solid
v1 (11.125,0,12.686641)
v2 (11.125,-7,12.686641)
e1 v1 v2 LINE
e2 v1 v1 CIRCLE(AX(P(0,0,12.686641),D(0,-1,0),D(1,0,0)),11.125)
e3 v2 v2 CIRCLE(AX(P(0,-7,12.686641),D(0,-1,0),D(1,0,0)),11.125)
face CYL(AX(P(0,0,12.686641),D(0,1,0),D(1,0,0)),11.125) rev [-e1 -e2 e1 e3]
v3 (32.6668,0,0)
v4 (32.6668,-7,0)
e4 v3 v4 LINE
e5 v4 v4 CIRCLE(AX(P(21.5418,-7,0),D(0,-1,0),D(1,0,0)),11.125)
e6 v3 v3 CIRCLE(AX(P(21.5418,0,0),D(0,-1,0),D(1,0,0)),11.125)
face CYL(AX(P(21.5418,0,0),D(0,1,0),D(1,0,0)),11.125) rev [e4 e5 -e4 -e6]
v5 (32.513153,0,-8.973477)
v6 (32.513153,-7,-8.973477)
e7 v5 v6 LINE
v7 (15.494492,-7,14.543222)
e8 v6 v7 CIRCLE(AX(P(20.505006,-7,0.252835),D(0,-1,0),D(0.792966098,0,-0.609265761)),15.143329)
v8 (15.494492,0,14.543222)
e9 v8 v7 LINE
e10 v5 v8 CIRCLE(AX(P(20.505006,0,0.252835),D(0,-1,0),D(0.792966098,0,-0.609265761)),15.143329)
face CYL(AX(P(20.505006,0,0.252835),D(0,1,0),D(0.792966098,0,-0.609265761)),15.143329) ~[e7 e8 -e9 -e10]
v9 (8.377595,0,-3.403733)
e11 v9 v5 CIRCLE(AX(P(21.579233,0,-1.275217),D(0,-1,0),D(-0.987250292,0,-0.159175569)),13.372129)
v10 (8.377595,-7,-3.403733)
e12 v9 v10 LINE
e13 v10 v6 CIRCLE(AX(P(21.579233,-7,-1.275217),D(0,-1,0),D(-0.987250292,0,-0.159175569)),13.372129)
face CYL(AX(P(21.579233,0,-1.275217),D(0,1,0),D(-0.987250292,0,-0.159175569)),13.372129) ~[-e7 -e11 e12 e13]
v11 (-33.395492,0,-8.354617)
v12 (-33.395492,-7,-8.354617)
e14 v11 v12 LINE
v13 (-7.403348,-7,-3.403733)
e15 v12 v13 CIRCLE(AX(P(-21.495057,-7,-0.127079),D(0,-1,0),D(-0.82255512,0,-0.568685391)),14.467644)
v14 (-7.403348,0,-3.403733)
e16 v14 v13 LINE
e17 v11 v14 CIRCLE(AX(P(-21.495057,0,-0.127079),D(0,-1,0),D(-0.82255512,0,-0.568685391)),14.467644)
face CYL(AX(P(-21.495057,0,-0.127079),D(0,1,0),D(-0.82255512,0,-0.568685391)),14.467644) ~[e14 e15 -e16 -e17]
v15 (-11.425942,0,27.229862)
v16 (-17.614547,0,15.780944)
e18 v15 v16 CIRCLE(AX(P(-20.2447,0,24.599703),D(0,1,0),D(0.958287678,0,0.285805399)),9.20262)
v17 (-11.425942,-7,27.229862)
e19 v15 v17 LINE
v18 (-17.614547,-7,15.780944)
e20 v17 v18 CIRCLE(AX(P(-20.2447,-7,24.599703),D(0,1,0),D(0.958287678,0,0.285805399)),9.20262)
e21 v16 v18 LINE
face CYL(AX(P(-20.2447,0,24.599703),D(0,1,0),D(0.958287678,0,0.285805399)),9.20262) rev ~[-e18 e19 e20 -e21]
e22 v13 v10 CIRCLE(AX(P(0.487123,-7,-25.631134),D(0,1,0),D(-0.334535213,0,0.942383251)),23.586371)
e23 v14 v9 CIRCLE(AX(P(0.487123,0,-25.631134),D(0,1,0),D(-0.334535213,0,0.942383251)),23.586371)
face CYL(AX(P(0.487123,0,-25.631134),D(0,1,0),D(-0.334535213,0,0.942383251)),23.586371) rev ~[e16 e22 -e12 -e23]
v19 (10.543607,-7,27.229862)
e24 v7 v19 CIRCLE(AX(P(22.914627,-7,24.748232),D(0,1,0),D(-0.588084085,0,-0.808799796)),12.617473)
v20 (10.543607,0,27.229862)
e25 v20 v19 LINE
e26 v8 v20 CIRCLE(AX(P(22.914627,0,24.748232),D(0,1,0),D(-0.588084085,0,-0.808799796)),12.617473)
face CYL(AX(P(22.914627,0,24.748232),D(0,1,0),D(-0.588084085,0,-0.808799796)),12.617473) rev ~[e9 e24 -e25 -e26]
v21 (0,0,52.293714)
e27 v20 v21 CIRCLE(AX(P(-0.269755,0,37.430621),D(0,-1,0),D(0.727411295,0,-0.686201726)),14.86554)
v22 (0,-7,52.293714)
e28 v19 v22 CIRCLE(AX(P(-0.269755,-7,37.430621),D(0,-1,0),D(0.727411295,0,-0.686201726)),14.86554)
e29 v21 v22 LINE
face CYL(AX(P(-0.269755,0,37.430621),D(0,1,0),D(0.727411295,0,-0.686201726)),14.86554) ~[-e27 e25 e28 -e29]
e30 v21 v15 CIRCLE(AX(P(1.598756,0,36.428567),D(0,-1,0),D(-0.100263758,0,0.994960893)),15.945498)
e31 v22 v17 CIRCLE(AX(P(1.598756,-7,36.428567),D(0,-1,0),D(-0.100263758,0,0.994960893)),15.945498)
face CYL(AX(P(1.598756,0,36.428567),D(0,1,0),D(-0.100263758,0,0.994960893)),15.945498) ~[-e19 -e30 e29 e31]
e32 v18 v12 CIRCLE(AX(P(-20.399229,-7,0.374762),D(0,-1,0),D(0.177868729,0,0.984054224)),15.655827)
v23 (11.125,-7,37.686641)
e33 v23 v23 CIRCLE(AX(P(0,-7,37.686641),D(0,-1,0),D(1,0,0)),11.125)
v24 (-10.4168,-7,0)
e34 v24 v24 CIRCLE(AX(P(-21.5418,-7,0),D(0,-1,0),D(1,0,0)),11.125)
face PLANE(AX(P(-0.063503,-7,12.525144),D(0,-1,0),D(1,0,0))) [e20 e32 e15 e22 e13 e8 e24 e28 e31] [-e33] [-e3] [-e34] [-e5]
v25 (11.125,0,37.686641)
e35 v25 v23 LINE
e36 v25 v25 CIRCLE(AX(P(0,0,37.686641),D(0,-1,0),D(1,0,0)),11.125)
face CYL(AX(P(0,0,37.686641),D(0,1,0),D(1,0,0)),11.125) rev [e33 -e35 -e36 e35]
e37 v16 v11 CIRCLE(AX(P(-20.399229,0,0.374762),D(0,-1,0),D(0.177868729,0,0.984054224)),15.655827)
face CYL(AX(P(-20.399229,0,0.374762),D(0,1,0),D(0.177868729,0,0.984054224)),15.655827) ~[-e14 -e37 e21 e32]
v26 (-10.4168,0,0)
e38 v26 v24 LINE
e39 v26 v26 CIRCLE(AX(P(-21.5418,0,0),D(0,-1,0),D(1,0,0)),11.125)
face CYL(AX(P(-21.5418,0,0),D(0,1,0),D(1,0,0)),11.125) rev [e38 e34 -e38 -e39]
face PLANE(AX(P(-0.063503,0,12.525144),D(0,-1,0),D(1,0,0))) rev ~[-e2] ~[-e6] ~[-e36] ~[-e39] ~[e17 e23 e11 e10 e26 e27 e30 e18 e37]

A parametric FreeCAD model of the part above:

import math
import FreeCAD as App
import Part
import Sketcher
Q = App.Units.Quantity

doc = App.newDocument("Part")
body = doc.addObject("PartDesign::Body", "Body")

sketch1 = doc.addObject("Sketcher::SketchObject", "Sketch")
body.addObject(sketch1)
sketch1.AttachmentSupport = (doc.XZ_Plane, [""])
sketch1.MapMode = "FlatFace"
sketch1.addGeometry([
    Part.ArcOfCircle(Part.Circle(App.Vector(-20.2447, 24.599703, 0), App.Vector(0, 0, 1), 9.20262), math.radians(-73.393041), math.radians(16.606997)),
    Part.ArcOfCircle(Part.Circle(App.Vector(-20.399229, 0.374762, 0), App.Vector(0, 0, 1), 15.655827), math.radians(79.754356), math.radians(213.888616)),
    Part.ArcOfCircle(Part.Circle(App.Vector(-21.495057, -0.127079, 0), App.Vector(0, 0, 1), 14.467644), math.radians(-145.341395), math.radians(-13.090012)),
    Part.ArcOfCircle(Part.Circle(App.Vector(0.487123, -25.631134, 0), App.Vector(0, 0, 1), 23.586371), math.radians(70.455723), math.radians(109.544277)),
    Part.ArcOfCircle(Part.Circle(App.Vector(21.579233, -1.275217, 0), App.Vector(0, 0, 1), 13.372129), math.radians(-170.840953), math.radians(-35.148279)),
    Part.ArcOfCircle(Part.Circle(App.Vector(20.505006, 0.252835, 0), App.Vector(0, 0, 1), 15.143329), math.radians(-37.536432), math.radians(109.321754)),
    Part.ArcOfCircle(Part.Circle(App.Vector(22.914627, 24.748232, 0), App.Vector(0, 0, 1), 12.617473), math.radians(168.657), math.radians(233.978833)),
    Part.ArcOfCircle(Part.Circle(App.Vector(-0.269755, 37.430621, 0), App.Vector(0, 0, 1), 14.86554), math.radians(-43.330189), math.radians(88.960235)),
    Part.ArcOfCircle(Part.Circle(App.Vector(1.598756, 36.428567, 0), App.Vector(0, 0, 1), 15.945498), math.radians(95.754359), math.radians(215.231685)),
    Part.Circle(App.Vector(-21.5418, 0, 0), App.Vector(0, 0, 1), 11.125),
    Part.Circle(App.Vector(21.5418, 0, 0), App.Vector(0, 0, 1), 11.125),
    Part.Circle(App.Vector(0, 12.686641, 0), App.Vector(0, 0, 1), 11.125),
    Part.Circle(App.Vector(0, 37.686641, 0), App.Vector(0, 0, 1), 11.125),
], False)
sketch1.addConstraint([
    Sketcher.Constraint("Coincident", 0, 1, 1, 1),
    Sketcher.Constraint("Coincident", 1, 2, 2, 1),
    Sketcher.Constraint("Coincident", 2, 2, 3, 2),
    Sketcher.Constraint("Coincident", 3, 1, 4, 1),
    Sketcher.Constraint("Coincident", 4, 2, 5, 1),
    Sketcher.Constraint("Coincident", 5, 2, 6, 2),
    Sketcher.Constraint("Coincident", 6, 1, 7, 1),
    Sketcher.Constraint("Coincident", 7, 2, 8, 1),
    Sketcher.Constraint("Coincident", 8, 2, 0, 2),
    Sketcher.Constraint("PointOnObject", 9, 3, -1),
    Sketcher.Constraint("PointOnObject", 10, 3, -1),
    Sketcher.Constraint("PointOnObject", 11, 3, -2),
    Sketcher.Constraint("PointOnObject", 12, 3, -2),
    Sketcher.Constraint("PointOnObject", 7, 2, -2),
    Sketcher.Constraint("Diameter", 9, Q("22.25 mm")),
    Sketcher.Constraint("Diameter", 10, Q("22.25 mm")),
    Sketcher.Constraint("Diameter", 11, Q("22.25 mm")),
    Sketcher.Constraint("Diameter", 12, Q("22.25 mm")),
    Sketcher.Constraint("DistanceY", 11, 3, 12, 3, Q("25 mm")),
    Sketcher.Constraint("Radius", 8, Q("15.945498 mm")),
    Sketcher.Constraint("Radius", 0, Q("9.20262 mm")),
    Sketcher.Constraint("Radius", 3, Q("23.586371 mm")),
    Sketcher.Constraint("Radius", 4, Q("13.372129 mm")),
    Sketcher.Constraint("Radius", 5, Q("15.143329 mm")),
    Sketcher.Constraint("Radius", 7, Q("14.86554 mm")),
    Sketcher.Constraint("Radius", 1, Q("15.655827 mm")),
    Sketcher.Constraint("Radius", 2, Q("14.467644 mm")),
    Sketcher.Constraint("Radius", 6, Q("12.617473 mm")),
    Sketcher.Constraint("DistanceX", 0, 3, -1, 1, Q("20.2447 mm")),
    Sketcher.Constraint("DistanceX", 9, 3, -1, 1, Q("21.5418 mm")),
    Sketcher.Constraint("DistanceX", -1, 1, 10, 3, Q("21.5418 mm")),
    Sketcher.Constraint("DistanceY", 2, 3, 7, 3, Q("37.557701 mm")),
    Sketcher.Constraint("DistanceX", 0, 1, 2, 2, Q("10.211199 mm")),
    Sketcher.Constraint("DistanceX", 1, 3, -1, 1, Q("20.399229 mm")),
    Sketcher.Constraint("DistanceY", -1, 1, 1, 3, Q("0.374762 mm")),
    Sketcher.Constraint("DistanceY", 2, 3, -1, 1, Q("0.127079 mm")),
    Sketcher.Constraint("DistanceY", -1, 1, 6, 3, Q("24.748232 mm")),
    Sketcher.Constraint("DistanceY", -1, 1, 11, 3, Q("12.686641 mm")),
    Sketcher.Constraint("DistanceX", 1, 2, -1, 1, Q("33.395492 mm")),
    Sketcher.Constraint("DistanceX", -1, 1, 5, 2, Q("15.494492 mm")),
    Sketcher.Constraint("DistanceY", -1, 1, 6, 1, Q("27.229862 mm")),
    Sketcher.Constraint("DistanceX", 8, 2, -1, 1, Q("11.425942 mm")),
    Sketcher.Constraint("DistanceY", 1, 3, 0, 3, Q("24.224942 mm")),
    Sketcher.Constraint("DistanceX", 2, 3, 3, 3, Q("21.982181 mm")),
    Sketcher.Constraint("DistanceX", 3, 3, 4, 3, Q("21.092109 mm")),
    Sketcher.Constraint("DistanceY", 4, 3, 1, 3, Q("1.649979 mm")),
    Sketcher.Constraint("DistanceY", 4, 3, 5, 3, Q("1.528052 mm")),
    Sketcher.Constraint("DistanceX", 5, 3, 6, 3, Q("2.409621 mm")),
])
pad1 = doc.addObject("PartDesign::Pad", "Pad")
body.addObject(pad1)
pad1.Profile = sketch1
pad1.Length = 7

doc.recompute()
